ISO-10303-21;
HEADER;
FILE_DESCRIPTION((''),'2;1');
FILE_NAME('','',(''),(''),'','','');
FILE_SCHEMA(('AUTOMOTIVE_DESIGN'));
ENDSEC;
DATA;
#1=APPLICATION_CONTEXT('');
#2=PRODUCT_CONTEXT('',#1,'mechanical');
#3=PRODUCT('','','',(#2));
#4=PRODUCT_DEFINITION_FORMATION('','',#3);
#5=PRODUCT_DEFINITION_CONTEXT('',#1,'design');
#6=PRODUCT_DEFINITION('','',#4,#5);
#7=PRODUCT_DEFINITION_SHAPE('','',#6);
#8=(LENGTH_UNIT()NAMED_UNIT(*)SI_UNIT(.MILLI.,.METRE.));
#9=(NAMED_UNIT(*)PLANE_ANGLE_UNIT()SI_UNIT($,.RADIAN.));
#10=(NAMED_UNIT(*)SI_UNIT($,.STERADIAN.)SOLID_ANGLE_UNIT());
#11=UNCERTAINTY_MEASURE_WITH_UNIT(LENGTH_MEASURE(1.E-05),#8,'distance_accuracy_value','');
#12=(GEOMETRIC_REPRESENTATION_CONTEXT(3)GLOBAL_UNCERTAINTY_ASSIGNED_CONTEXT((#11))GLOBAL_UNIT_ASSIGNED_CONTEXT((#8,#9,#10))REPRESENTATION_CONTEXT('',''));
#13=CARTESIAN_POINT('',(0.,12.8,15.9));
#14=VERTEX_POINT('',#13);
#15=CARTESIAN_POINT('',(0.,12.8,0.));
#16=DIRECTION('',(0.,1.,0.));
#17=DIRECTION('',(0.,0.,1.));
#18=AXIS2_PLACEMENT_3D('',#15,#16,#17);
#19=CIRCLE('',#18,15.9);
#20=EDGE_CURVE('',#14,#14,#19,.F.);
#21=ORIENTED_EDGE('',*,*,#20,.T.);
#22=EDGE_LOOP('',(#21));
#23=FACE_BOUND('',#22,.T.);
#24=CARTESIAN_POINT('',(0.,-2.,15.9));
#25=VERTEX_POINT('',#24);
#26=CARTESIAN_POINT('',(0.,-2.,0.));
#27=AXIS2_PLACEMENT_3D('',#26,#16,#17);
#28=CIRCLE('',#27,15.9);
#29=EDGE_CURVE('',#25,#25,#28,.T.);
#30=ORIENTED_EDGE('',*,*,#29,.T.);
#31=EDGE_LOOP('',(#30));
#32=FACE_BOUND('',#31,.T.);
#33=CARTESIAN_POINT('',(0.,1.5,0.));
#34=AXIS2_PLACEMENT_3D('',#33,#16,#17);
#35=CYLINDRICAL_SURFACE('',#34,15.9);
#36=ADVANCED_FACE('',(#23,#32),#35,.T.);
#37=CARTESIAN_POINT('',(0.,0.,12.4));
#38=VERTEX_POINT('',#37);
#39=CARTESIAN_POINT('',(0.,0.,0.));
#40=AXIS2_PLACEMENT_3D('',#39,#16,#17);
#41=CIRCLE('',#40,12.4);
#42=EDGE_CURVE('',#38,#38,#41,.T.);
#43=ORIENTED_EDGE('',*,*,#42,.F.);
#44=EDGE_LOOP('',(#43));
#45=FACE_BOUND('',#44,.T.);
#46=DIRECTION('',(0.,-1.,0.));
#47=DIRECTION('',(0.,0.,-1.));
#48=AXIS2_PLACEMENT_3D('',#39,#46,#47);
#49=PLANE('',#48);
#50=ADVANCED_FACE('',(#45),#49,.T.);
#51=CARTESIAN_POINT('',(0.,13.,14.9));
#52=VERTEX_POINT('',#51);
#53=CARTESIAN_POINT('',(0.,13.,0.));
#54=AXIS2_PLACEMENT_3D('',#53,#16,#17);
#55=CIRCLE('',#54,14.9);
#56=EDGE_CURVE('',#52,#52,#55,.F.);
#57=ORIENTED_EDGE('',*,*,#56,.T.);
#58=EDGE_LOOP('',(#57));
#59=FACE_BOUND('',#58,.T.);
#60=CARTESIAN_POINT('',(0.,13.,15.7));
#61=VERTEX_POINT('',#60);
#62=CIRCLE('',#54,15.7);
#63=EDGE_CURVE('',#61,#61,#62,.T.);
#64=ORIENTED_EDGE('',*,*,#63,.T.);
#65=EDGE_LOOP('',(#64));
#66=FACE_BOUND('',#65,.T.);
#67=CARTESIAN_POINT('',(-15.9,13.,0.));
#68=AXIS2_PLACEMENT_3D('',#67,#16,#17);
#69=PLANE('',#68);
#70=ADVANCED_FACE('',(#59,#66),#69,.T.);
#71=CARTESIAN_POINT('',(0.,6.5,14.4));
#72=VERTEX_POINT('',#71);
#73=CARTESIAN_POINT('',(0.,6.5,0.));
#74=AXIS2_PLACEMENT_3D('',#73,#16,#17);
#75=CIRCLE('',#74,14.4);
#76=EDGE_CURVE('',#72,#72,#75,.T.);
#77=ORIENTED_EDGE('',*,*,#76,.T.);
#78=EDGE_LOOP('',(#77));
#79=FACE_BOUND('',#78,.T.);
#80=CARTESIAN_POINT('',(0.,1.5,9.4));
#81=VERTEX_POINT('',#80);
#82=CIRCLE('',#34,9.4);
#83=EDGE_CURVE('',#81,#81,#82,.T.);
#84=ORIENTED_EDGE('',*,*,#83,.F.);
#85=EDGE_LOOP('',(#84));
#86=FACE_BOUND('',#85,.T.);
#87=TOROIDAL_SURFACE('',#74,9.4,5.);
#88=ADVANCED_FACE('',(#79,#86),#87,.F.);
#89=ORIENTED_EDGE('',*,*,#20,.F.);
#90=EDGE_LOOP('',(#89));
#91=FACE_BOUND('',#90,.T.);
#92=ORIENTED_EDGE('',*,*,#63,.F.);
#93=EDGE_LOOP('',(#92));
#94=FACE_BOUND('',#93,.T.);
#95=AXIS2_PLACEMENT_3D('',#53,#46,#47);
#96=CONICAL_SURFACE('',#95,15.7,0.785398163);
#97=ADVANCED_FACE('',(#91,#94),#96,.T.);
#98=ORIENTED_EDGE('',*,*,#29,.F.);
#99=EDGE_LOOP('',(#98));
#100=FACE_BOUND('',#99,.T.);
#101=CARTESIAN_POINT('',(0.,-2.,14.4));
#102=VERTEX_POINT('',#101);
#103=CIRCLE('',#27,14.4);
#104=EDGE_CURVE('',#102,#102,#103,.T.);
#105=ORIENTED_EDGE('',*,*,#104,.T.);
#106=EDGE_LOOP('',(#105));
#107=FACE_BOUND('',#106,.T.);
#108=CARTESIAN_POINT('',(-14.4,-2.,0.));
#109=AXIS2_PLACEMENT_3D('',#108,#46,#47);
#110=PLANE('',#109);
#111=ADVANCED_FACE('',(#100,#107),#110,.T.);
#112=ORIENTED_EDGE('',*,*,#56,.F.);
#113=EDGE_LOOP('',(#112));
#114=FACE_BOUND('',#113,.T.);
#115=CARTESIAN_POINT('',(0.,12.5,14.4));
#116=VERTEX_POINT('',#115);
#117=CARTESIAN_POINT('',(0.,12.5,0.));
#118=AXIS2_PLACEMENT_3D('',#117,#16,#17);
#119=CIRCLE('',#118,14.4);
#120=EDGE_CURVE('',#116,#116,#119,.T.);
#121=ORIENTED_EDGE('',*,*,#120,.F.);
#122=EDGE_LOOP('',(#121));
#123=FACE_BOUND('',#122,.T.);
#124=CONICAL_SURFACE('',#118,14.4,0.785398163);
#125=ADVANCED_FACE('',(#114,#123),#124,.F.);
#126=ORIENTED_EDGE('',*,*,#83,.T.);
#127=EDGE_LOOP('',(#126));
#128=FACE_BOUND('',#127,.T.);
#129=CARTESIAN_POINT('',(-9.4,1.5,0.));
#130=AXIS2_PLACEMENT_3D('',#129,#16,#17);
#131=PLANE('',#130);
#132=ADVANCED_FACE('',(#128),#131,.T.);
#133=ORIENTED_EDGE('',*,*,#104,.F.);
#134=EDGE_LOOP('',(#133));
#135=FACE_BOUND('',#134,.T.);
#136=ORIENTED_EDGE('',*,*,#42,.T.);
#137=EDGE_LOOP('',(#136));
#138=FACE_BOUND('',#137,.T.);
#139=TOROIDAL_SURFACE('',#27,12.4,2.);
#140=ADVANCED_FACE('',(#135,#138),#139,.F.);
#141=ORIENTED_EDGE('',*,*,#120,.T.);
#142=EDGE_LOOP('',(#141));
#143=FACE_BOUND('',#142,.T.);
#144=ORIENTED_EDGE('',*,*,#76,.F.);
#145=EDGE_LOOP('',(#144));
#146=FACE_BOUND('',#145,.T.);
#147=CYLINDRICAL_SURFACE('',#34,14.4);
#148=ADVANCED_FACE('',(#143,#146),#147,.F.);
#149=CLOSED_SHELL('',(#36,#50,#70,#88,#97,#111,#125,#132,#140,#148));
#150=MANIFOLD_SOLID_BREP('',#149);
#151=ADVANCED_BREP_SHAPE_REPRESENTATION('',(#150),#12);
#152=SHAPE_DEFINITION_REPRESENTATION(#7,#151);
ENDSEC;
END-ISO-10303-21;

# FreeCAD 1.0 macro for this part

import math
import FreeCAD as App
import Part
import Sketcher

V = App.Vector


def edges_at(feature, points):
    """Names of the edges that pass closest to the given points."""
    edges = feature.Shape.Edges
    near = lambda p: min(range(len(edges)), key=lambda i: edges[i].distToShape(Part.Vertex(*p))[0])
    return sorted({f"Edge{near(p) + 1}" for p in points})

doc = App.newDocument("Part")
body = doc.addObject("PartDesign::Body", "Body")

# Sketch on XY plane
sketch1 = body.newObject("Sketcher::SketchObject", "Sketch")
sketch1.AttachmentSupport = (doc.getObject("XY_Plane"), [""])
sketch1.MapMode = "FlatFace"
sketch1.addGeometry([
    Part.LineSegment(V(-12.4, 0, 0), V(0, 0, 0)),  # 0
    Part.LineSegment(V(0, 0, 0), V(0, 1.5, 0)),  # 1
    Part.LineSegment(V(0, 1.5, 0), V(-9.4, 1.5, 0)),  # 2
    Part.ArcOfCircle(Part.Circle(V(-9.4, 6.5, 0), V(0, 0, 1), 5), math.radians(180), math.radians(270)),  # 3
    Part.LineSegment(V(-14.4, 6.5, 0), V(-14.4, 13, 0)),  # 4
    Part.LineSegment(V(-14.4, 13, 0), V(-15.9, 13, 0)),  # 5
    Part.LineSegment(V(-15.9, 13, 0), V(-15.9, -2, 0)),  # 6
    Part.LineSegment(V(-15.9, -2, 0), V(-14.4, -2, 0)),  # 7
    Part.ArcOfCircle(Part.Circle(V(-12.4, -2, 0), V(0, 0, 1), 2), math.radians(90), math.radians(180)),  # 8
], False)
sketch1.addConstraint([
    Sketcher.Constraint("Coincident", 0, 2, 1, 1),
    Sketcher.Constraint("Coincident", 1, 2, 2, 1),
    Sketcher.Constraint("Tangent", 2, 2, 3, 2),
    Sketcher.Constraint("Tangent", 3, 1, 4, 1),
    Sketcher.Constraint("Coincident", 4, 2, 5, 1),
    Sketcher.Constraint("Coincident", 5, 2, 6, 1),
    Sketcher.Constraint("Coincident", 6, 2, 7, 1),
    Sketcher.Constraint("Coincident", 7, 2, 8, 2),
    Sketcher.Constraint("Tangent", 8, 1, 0, 1),
    Sketcher.Constraint("Horizontal", 0),
    Sketcher.Constraint("Vertical", 1),
    Sketcher.Constraint("Horizontal", 2),
    Sketcher.Constraint("Vertical", 4),
    Sketcher.Constraint("Horizontal", 5),
    Sketcher.Constraint("Vertical", 6),
    Sketcher.Constraint("Horizontal", 7),
    Sketcher.Constraint("Coincident", 0, 2, -1, 1),
    Sketcher.Constraint("Horizontal", 8, 3, 6, 2),
    Sketcher.Constraint("Vertical", 4, 2, 7, 2),
    Sketcher.Constraint("Equal", 7, 1),
    Sketcher.Constraint("Radius", 3, 5.0),
    Sketcher.Constraint("Radius", 8, 2.0),
    Sketcher.Constraint("DistanceY", 6, 2, 6, 1, 15.0),
    Sketcher.Constraint("DistanceX", 0, 1, 0, 2, 12.4),
    Sketcher.Constraint("DistanceX", 5, 2, 5, 1, 1.5),
])
revolution = body.newObject("PartDesign::Revolution", "Revolution")
revolution.Profile = sketch1
revolution.ReferenceAxis = (sketch1, ["V_Axis"])
revolution.Angle = 360
doc.recompute()

chamfer = body.newObject("PartDesign::Chamfer", "Chamfer")
chamfer.Base = (revolution, edges_at(revolution, [(0, 13, -14.4)]))
chamfer.Size = 0.5
doc.recompute()

chamfer2 = body.newObject("PartDesign::Chamfer", "Chamfer001")
chamfer2.Base = (chamfer, edges_at(chamfer, [(0, 13, -15.9)]))
chamfer2.Size = 0.2

doc.recompute()
